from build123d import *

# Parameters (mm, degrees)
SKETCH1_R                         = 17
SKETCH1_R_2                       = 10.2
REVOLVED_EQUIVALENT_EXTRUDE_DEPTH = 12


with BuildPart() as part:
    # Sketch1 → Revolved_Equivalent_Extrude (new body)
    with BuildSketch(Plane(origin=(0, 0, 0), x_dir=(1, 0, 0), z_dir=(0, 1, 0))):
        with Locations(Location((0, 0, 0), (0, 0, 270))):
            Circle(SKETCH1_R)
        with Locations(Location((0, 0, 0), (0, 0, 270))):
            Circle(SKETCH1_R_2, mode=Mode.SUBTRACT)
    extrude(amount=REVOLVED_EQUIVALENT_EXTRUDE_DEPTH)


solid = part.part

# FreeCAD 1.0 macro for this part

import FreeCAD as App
import Part
import Sketcher
from FreeCAD import Vector
Q = App.Units.Quantity

doc = App.newDocument("Part")
body = doc.addObject("PartDesign::Body", "Body")

# Sketch on XZ plane
sketch1 = body.newObject("Sketcher::SketchObject", "Sketch")
sketch1.AttachmentSupport = (doc.getObject("XZ_Plane"), [""])
sketch1.MapMode = "FlatFace"
sketch1.addGeometry(Part.Circle(Vector(0, 0, 0), Vector(0, 0, 1), 17), False)
sketch1.addGeometry(Part.Circle(Vector(0, 0, 0), Vector(0, 0, 1), 10), False)
sketch1.addConstraint(Sketcher.Constraint("Coincident", 0, 3, -1, 1))
sketch1.addConstraint(Sketcher.Constraint("Coincident", 1, 3, -1, 1))
sketch1.addConstraint(Sketcher.Constraint("Diameter", 0, Q("34 mm")))
sketch1.addConstraint(Sketcher.Constraint("Diameter", 1, Q("20.4 mm")))
pad1 = body.newObject("PartDesign::Pad", "Pad")
pad1.Profile = sketch1
pad1.Length = 12
pad1.Reversed = True

doc.recompute()
